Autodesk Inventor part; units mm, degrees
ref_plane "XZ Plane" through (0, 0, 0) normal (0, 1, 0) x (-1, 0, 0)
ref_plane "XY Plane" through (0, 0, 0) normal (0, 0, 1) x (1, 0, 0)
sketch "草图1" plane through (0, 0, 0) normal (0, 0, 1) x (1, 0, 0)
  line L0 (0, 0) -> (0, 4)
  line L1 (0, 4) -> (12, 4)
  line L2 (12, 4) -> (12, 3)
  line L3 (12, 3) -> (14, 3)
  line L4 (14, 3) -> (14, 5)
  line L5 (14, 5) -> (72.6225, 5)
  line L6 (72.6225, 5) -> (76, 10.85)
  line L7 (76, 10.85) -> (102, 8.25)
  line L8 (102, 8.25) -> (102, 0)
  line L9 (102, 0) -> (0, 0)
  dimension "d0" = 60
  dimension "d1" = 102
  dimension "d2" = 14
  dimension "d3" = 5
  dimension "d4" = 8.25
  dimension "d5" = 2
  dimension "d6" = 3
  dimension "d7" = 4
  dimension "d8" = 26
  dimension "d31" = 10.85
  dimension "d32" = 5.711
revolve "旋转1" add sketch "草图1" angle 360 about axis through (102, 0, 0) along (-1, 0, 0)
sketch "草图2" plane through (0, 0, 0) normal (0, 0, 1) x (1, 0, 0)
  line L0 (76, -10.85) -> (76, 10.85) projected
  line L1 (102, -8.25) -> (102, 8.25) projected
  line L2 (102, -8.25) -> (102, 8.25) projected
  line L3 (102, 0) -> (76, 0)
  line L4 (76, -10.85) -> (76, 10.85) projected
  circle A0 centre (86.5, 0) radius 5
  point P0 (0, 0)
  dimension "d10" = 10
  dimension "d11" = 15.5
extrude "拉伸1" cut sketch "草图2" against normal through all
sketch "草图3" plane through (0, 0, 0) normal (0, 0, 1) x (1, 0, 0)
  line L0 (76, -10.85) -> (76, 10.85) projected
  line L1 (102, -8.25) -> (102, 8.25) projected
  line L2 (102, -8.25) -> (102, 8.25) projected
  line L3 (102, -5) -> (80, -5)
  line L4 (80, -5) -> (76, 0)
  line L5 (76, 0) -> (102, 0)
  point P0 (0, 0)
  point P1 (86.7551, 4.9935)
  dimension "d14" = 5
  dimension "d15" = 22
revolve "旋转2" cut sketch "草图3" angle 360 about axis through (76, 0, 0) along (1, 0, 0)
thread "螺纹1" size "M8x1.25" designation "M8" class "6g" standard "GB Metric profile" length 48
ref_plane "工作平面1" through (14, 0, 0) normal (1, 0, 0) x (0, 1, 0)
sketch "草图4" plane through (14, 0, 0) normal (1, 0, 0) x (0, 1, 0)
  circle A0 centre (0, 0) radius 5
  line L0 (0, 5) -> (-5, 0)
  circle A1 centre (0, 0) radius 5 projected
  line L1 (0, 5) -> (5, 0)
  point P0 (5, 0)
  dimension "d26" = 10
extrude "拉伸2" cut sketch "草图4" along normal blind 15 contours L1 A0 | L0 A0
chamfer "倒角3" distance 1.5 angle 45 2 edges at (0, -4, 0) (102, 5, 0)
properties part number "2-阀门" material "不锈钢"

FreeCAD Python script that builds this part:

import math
import FreeCAD as App
import Part
import Sketcher
from FreeCAD import Vector
Q = App.Units.Quantity


def edges_at(feature, points):
    """Names of the edges that pass closest to the given points."""
    edges = feature.Shape.Edges
    near = lambda p: min(range(len(edges)), key=lambda i: edges[i].distToShape(Part.Vertex(*p))[0])
    return sorted({f"Edge{near(p) + 1}" for p in points})


def add_polygon(sketch, points):
    """Adds a closed chain of lines whose ends are joined by coincident constraints."""
    first, n = sketch.GeometryCount, len(points)
    for a, b in zip(points, points[1:] + points[:1]):
        sketch.addGeometry(Part.LineSegment(App.Vector(*a, 0), App.Vector(*b, 0)), False)
    for i in range(n):
        sketch.addConstraint(Sketcher.Constraint("Coincident", first + i, 2, first + (i + 1) % n, 1))

doc = App.newDocument("Part")
body = doc.addObject("PartDesign::Body", "Body")

sketch1 = body.newObject("Sketcher::SketchObject", "Sketch")
sketch1.AttachmentSupport = (doc.getObject("XY_Plane"), [""])
sketch1.MapMode = "FlatFace"
add_polygon(sketch1, [(0, 4), (0, 0), (102, 0), (102, 8.2), (76, 10.8), (72.6, 5), (14, 5), (14, 3), (12, 3), (12, 4)])
sketch1.addConstraint([
    Sketcher.Constraint("Vertical", 0),
    Sketcher.Constraint("Horizontal", 1),
    Sketcher.Constraint("Vertical", 2),
    Sketcher.Constraint("Horizontal", 5),
    Sketcher.Constraint("Vertical", 6),
    Sketcher.Constraint("Horizontal", 7),
    Sketcher.Constraint("Vertical", 8),
    Sketcher.Constraint("Horizontal", 9),
    Sketcher.Constraint("Coincident", 0, 2, -1, 1),
    Sketcher.Constraint("Equal", 7, 6),
    Sketcher.Constraint("DistanceX", 1, 1, 1, 2, Q("102 mm")),
    Sketcher.Constraint("DistanceX", 7, 2, 7, 1, Q("2 mm")),
    Sketcher.Constraint("DistanceY", 0, 2, 0, 1, Q("4 mm")),
    Sketcher.Constraint("DistanceY", -1, 1, 4, 2, Q("5 mm")),
    Sketcher.Constraint("DistanceX", -1, 1, 5, 2, Q("14 mm")),
    Sketcher.Constraint("DistanceX", 3, 2, 2, 2, Q("26 mm")),
    Sketcher.Constraint("DistanceY", 2, 1, 2, 2, Q("8.25 mm")),
    Sketcher.Constraint("DistanceY", -1, 1, 3, 2, Q("10.85 mm")),
    Sketcher.Constraint("Angle", 4, Q("-120 deg")),
])
revolution = body.newObject("PartDesign::Revolution", "Revolution")
revolution.Profile = sketch1
revolution.ReferenceAxis = (sketch1, ["H_Axis"])
revolution.Angle = 360

sketch2 = body.newObject("Sketcher::SketchObject", "Sketch001")
sketch2.AttachmentSupport = (doc.getObject("XY_Plane"), [""])
sketch2.MapMode = "FlatFace"
sketch2.addGeometry(Part.Circle(Vector(86, 0, 0), Vector(0, 0, 1), 5), False)
sketch2.addConstraint([
    Sketcher.Constraint("PointOnObject", 0, 3, -1),
    Sketcher.Constraint("Diameter", 0, Q("10 mm")),
    Sketcher.Constraint("DistanceX", -1, 1, 0, 3, Q("86.5 mm")),
])
pocket1 = body.newObject("PartDesign::Pocket", "Pocket")
pocket1.Profile = sketch2
pocket1.Type = "ThroughAll"

sketch3 = body.newObject("Sketcher::SketchObject", "Sketch002")
sketch3.AttachmentSupport = (doc.getObject("XY_Plane"), [""])
sketch3.MapMode = "FlatFace"
add_polygon(sketch3, [(80, -5), (102, -5), (102, 0), (76, 0)])
sketch3.addConstraint([
    Sketcher.Constraint("Horizontal", 0),
    Sketcher.Constraint("Vertical", 1),
    Sketcher.Constraint("Horizontal", 2),
    Sketcher.Constraint("PointOnObject", 1, 2, -1),
    Sketcher.Constraint("DistanceX", 0, 1, 0, 2, Q("22 mm")),
    Sketcher.Constraint("DistanceY", 1, 1, 1, 2, Q("5 mm")),
    Sketcher.Constraint("DistanceX", 2, 2, 2, 1, Q("26 mm")),
    Sketcher.Constraint("DistanceX", -1, 1, 0, 2, Q("102 mm")),
])
groove = body.newObject("PartDesign::Groove", "Groove")
groove.Profile = sketch3
groove.ReferenceAxis = (sketch3, ["H_Axis"])
groove.Angle = 360

sketch4 = body.newObject("Sketcher::SketchObject", "Sketch003")
sketch4.AttachmentSupport = (doc.getObject("YZ_Plane"), [""])
sketch4.MapMode = "FlatFace"
sketch4.AttachmentOffset = App.Placement(Vector(0, 0, 14), App.Rotation())
sketch4.addGeometry([
    Part.LineSegment(Vector(0, 5, 0), Vector(5, 0, 0)),
    Part.ArcOfCircle(Part.Circle(Vector(0, 0, 0), Vector(0, 0, 1), 5), math.radians(0), math.radians(90)),
    Part.LineSegment(Vector(-5, 0, 0), Vector(0, 5, 0)),
    Part.ArcOfCircle(Part.Circle(Vector(0, 0, 0), Vector(0, 0, 1), 5), math.radians(90), math.radians(180)),
], False)
sketch4.addConstraint([
    Sketcher.Constraint("Coincident", 0, 1, 1, 2),
    Sketcher.Constraint("Coincident", 1, 1, 0, 2),
    Sketcher.Constraint("Coincident", 2, 1, 3, 2),
    Sketcher.Constraint("Coincident", 3, 1, 2, 2),
    Sketcher.Constraint("Coincident", 1, 3, -1, 1),
    Sketcher.Constraint("Coincident", 3, 3, -1, 1),
    Sketcher.Constraint("Coincident", 3, 1, 0, 1),
    Sketcher.Constraint("PointOnObject", 0, 1, -2),
    Sketcher.Constraint("PointOnObject", 1, 1, -1),
    Sketcher.Constraint("PointOnObject", 2, 1, -1),
    Sketcher.Constraint("Radius", 1, Q("5 mm")),
])
pocket2 = body.newObject("PartDesign::Pocket", "Pocket001")
pocket2.Profile = sketch4
pocket2.Length = 15
pocket2.Reversed = True
doc.recompute()

chamfer = body.newObject("PartDesign::Chamfer", "Chamfer")
chamfer.Base = (pocket2, edges_at(pocket2, [(0, -4, 0), (102, 5, 0)]))
chamfer.Size = 1.5

doc.recompute()
